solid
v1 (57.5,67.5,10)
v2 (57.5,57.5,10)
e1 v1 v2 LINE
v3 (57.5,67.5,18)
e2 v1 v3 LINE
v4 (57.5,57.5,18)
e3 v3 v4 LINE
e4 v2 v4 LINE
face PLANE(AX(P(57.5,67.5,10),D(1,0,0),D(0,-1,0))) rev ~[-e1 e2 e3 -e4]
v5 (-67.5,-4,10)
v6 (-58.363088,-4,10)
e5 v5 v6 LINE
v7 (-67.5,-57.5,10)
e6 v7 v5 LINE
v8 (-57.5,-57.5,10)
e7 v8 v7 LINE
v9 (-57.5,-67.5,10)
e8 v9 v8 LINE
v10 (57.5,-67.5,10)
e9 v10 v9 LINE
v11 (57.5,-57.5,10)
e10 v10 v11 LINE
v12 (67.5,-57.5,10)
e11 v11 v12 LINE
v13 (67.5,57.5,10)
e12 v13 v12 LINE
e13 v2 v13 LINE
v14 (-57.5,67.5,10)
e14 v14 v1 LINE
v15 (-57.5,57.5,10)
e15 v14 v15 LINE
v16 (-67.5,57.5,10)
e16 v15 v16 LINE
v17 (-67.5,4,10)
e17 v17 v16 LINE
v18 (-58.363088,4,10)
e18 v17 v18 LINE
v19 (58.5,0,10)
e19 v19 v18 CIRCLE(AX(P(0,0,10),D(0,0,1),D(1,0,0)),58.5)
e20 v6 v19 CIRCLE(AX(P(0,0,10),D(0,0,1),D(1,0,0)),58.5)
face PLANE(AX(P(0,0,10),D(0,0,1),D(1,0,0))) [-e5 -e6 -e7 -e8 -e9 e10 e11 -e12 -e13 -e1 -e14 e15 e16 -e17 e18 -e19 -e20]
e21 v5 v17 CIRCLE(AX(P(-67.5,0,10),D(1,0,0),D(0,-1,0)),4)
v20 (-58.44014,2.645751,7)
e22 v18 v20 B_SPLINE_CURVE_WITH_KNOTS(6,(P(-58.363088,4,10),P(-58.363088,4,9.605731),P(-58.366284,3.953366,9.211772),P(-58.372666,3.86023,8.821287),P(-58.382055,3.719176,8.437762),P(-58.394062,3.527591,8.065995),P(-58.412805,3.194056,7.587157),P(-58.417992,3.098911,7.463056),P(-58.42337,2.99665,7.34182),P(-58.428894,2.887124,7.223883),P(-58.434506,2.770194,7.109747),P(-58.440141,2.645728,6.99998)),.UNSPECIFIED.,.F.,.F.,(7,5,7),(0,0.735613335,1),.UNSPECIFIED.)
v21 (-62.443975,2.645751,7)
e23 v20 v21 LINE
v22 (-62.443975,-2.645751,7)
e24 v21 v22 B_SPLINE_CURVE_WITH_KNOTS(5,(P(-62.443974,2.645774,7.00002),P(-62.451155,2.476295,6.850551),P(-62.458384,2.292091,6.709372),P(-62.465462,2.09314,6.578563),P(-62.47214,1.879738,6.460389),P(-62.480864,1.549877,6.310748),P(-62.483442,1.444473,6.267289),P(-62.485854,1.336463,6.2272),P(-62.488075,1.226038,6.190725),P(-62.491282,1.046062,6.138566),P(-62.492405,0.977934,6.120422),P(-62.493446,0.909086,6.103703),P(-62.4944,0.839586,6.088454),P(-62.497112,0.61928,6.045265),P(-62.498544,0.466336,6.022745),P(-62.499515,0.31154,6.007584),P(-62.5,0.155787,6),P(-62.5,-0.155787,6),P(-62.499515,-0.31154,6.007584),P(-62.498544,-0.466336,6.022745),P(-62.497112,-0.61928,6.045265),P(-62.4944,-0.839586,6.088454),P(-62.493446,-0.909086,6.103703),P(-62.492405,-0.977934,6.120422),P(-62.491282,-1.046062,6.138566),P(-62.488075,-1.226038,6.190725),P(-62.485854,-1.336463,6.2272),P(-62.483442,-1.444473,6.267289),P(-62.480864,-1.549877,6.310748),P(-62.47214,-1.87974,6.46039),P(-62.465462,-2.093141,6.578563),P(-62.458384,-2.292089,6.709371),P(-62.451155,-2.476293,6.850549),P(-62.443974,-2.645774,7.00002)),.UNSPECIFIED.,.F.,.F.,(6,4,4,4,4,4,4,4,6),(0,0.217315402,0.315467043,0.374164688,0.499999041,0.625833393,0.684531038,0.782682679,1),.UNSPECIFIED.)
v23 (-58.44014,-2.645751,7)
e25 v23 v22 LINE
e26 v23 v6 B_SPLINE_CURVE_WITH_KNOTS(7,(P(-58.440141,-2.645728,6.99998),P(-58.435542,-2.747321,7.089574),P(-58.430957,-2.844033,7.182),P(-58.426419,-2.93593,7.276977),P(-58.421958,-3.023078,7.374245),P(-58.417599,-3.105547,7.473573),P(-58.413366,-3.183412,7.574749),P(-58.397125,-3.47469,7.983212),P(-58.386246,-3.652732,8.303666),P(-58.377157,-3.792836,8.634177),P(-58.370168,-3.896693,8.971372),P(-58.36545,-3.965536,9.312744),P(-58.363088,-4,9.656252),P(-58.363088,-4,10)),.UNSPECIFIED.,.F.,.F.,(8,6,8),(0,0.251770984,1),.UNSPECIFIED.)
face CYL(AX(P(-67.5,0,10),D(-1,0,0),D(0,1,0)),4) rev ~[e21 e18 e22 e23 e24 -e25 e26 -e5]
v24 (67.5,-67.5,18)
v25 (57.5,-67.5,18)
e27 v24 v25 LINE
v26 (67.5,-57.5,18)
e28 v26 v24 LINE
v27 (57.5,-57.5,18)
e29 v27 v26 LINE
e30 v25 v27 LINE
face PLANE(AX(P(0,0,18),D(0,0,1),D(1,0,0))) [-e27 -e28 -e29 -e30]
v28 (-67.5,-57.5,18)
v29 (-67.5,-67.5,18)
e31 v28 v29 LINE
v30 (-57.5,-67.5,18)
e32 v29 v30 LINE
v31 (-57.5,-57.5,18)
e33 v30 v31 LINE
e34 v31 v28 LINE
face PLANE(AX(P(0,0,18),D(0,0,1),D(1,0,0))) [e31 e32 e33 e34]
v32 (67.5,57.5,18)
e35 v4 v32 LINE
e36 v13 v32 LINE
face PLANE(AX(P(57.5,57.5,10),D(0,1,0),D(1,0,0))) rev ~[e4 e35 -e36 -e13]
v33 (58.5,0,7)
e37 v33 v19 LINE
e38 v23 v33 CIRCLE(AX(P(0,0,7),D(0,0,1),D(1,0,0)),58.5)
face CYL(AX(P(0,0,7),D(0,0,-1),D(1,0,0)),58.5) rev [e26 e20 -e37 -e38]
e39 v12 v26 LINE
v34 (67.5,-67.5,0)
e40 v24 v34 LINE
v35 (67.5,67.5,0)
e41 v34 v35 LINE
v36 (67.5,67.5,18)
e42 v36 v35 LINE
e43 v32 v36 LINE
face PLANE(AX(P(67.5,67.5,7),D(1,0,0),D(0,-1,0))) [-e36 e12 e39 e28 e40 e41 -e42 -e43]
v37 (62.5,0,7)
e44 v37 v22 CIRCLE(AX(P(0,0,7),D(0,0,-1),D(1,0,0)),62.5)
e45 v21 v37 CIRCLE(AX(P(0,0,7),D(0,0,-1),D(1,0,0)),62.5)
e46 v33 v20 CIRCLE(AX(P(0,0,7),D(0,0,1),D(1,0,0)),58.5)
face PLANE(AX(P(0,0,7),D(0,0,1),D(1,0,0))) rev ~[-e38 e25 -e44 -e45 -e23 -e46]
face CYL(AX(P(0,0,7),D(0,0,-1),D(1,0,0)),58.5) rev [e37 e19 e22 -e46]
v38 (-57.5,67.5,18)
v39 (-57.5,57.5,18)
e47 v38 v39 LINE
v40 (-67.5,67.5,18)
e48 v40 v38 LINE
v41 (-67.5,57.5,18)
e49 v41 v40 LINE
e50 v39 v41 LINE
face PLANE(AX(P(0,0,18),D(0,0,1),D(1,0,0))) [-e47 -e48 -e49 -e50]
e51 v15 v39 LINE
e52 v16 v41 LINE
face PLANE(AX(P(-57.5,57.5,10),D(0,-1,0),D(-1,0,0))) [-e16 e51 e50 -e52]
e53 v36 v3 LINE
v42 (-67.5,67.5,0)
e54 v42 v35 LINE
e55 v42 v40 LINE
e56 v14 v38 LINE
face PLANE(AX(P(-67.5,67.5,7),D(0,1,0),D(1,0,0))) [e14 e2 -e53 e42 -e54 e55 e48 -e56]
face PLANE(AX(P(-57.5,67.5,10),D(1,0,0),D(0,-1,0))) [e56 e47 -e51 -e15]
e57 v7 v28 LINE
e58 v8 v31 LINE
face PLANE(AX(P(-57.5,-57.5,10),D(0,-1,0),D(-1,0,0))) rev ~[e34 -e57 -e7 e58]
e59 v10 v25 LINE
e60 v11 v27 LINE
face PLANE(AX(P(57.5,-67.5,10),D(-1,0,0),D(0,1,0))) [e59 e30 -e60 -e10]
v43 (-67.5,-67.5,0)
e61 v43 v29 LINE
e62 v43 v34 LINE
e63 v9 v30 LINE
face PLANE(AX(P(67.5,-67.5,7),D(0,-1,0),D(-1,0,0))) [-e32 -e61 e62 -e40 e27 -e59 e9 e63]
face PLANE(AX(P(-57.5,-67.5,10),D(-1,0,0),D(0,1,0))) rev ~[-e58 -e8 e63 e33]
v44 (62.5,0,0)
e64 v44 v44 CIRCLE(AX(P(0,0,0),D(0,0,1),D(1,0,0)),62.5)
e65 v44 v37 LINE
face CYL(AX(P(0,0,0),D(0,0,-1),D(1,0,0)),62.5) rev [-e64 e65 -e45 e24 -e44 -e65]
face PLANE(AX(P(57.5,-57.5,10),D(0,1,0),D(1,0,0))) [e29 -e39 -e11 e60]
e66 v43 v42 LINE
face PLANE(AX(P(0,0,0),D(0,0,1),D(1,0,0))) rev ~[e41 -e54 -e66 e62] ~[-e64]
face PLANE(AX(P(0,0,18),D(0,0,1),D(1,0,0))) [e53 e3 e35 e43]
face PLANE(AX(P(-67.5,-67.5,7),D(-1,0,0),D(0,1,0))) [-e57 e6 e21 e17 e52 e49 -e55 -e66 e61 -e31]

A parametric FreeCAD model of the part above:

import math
import FreeCAD as App
import Part
import Sketcher
from FreeCAD import Vector
Q = App.Units.Quantity

doc = App.newDocument("Part")
body = doc.addObject("PartDesign::Body", "Body")

# Sketch on XY plane
sketch1 = doc.addObject("Sketcher::SketchObject", "Sketch")
body.addObject(sketch1)
sketch1.AttachmentSupport = (doc.XY_Plane, [""])
sketch1.MapMode = "FlatFace"
sketch1.addGeometry([
    Part.LineSegment(Vector(67.5, -67.5, 0), Vector(67.5, 67.5, 0)),  # 0
    Part.LineSegment(Vector(67.5, 67.5, 0), Vector(-67.5, 67.5, 0)),  # 1
    Part.LineSegment(Vector(-67.5, 67.5, 0), Vector(-67.5, -67.5, 0)),  # 2
    Part.LineSegment(Vector(-67.5, -67.5, 0), Vector(67.5, -67.5, 0)),  # 3
    Part.Circle(Vector(0, 0, 0), Vector(0, 0, 1), 62.5),  # 4
], False)
sketch1.addConstraint([
    Sketcher.Constraint("Coincident", 0, 2, 1, 1),
    Sketcher.Constraint("Coincident", 1, 2, 2, 1),
    Sketcher.Constraint("Coincident", 2, 2, 3, 1),
    Sketcher.Constraint("Coincident", 3, 2, 0, 1),
    Sketcher.Constraint("Vertical", 0),
    Sketcher.Constraint("Horizontal", 1),
    Sketcher.Constraint("Vertical", 2),
    Sketcher.Constraint("Horizontal", 3),
    Sketcher.Constraint("Coincident", 4, 3, -1, 1),
    Sketcher.Constraint("Symmetric", 0, 2, 2, 2, -1, 1),
    Sketcher.Constraint("Equal", 3, 0),
    Sketcher.Constraint("Diameter", 4, Q("125 mm")),
    Sketcher.Constraint("DistanceX", 1, 2, 1, 1, Q("135 mm")),
])
pad1 = doc.addObject("PartDesign::Pad", "Pad")
body.addObject(pad1)
pad1.Profile = sketch1
pad1.Length = 7

# Sketch on XY plane
sketch2 = doc.addObject("Sketcher::SketchObject", "Sketch001")
body.addObject(sketch2)
sketch2.AttachmentSupport = (doc.XY_Plane, [""])
sketch2.MapMode = "FlatFace"
sketch2.AttachmentOffset = App.Placement(Vector(0, 0, 7), App.Rotation())
sketch2.addGeometry([
    Part.LineSegment(Vector(67.5, 67.5, 0), Vector(-67.5, 67.5, 0)),  # 0
    Part.LineSegment(Vector(-67.5, 67.5, 0), Vector(-67.5, -67.5, 0)),  # 1
    Part.LineSegment(Vector(-67.5, -67.5, 0), Vector(67.5, -67.5, 0)),  # 2
    Part.LineSegment(Vector(67.5, -67.5, 0), Vector(67.5, 67.5, 0)),  # 3
    Part.Circle(Vector(0, 0, 0), Vector(0, 0, 1), 58.5),  # 4
], False)
sketch2.addConstraint([
    Sketcher.Constraint("Coincident", 0, 2, 1, 1),
    Sketcher.Constraint("Coincident", 1, 2, 2, 1),
    Sketcher.Constraint("Coincident", 2, 2, 3, 1),
    Sketcher.Constraint("Coincident", 3, 2, 0, 1),
    Sketcher.Constraint("Horizontal", 0),
    Sketcher.Constraint("Vertical", 1),
    Sketcher.Constraint("Horizontal", 2),
    Sketcher.Constraint("Vertical", 3),
    Sketcher.Constraint("Coincident", 4, 3, -1, 1),
    Sketcher.Constraint("Symmetric", 0, 2, 2, 2, -1, 1),
    Sketcher.Constraint("Equal", 2, 1),
    Sketcher.Constraint("Diameter", 4, Q("117 mm")),
    Sketcher.Constraint("DistanceX", 0, 2, 0, 1, Q("135 mm")),
])
pad2 = doc.addObject("PartDesign::Pad", "Pad001")
body.addObject(pad2)
pad2.Profile = sketch2
pad2.Length = 3

# Sketch on XY plane
sketch3 = doc.addObject("Sketcher::SketchObject", "Sketch002")
body.addObject(sketch3)
sketch3.AttachmentSupport = (doc.XY_Plane, [""])
sketch3.MapMode = "FlatFace"
sketch3.AttachmentOffset = App.Placement(Vector(0, 0, 10), App.Rotation())
sketch3.addGeometry([
    Part.LineSegment(Vector(-67.5, -57.5, 0), Vector(-67.5, -67.5, 0)),  # 0
    Part.LineSegment(Vector(-67.5, -67.5, 0), Vector(-57.5, -67.5, 0)),  # 1
    Part.LineSegment(Vector(-57.5, -67.5, 0), Vector(-57.5, -57.5, 0)),  # 2
    Part.LineSegment(Vector(-57.5, -57.5, 0), Vector(-67.5, -57.5, 0)),  # 3
    Part.LineSegment(Vector(67.5, 57.5, 0), Vector(67.5, 67.5, 0)),  # 4
    Part.LineSegment(Vector(67.5, 67.5, 0), Vector(57.5, 67.5, 0)),  # 5
    Part.LineSegment(Vector(57.5, 67.5, 0), Vector(57.5, 57.5, 0)),  # 6
    Part.LineSegment(Vector(57.5, 57.5, 0), Vector(67.5, 57.5, 0)),  # 7
    Part.LineSegment(Vector(-57.5, 67.5, 0), Vector(-67.5, 67.5, 0)),  # 8
    Part.LineSegment(Vector(-67.5, 67.5, 0), Vector(-67.5, 57.5, 0)),  # 9
    Part.LineSegment(Vector(-67.5, 57.5, 0), Vector(-57.5, 57.5, 0)),  # 10
    Part.LineSegment(Vector(-57.5, 57.5, 0), Vector(-57.5, 67.5, 0)),  # 11
    Part.LineSegment(Vector(57.5, -67.5, 0), Vector(67.5, -67.5, 0)),  # 12
    Part.LineSegment(Vector(67.5, -67.5, 0), Vector(67.5, -57.5, 0)),  # 13
    Part.LineSegment(Vector(67.5, -57.5, 0), Vector(57.5, -57.5, 0)),  # 14
    Part.LineSegment(Vector(57.5, -57.5, 0), Vector(57.5, -67.5, 0)),  # 15
], False)
sketch3.addConstraint([
    Sketcher.Constraint("Coincident", 0, 2, 1, 1),
    Sketcher.Constraint("Coincident", 1, 2, 2, 1),
    Sketcher.Constraint("Coincident", 2, 2, 3, 1),
    Sketcher.Constraint("Coincident", 3, 2, 0, 1),
    Sketcher.Constraint("Coincident", 4, 2, 5, 1),
    Sketcher.Constraint("Coincident", 5, 2, 6, 1),
    Sketcher.Constraint("Coincident", 6, 2, 7, 1),
    Sketcher.Constraint("Coincident", 7, 2, 4, 1),
    Sketcher.Constraint("Coincident", 8, 2, 9, 1),
    Sketcher.Constraint("Coincident", 9, 2, 10, 1),
    Sketcher.Constraint("Coincident", 10, 2, 11, 1),
    Sketcher.Constraint("Coincident", 11, 2, 8, 1),
    Sketcher.Constraint("Coincident", 12, 2, 13, 1),
    Sketcher.Constraint("Coincident", 13, 2, 14, 1),
    Sketcher.Constraint("Coincident", 14, 2, 15, 1),
    Sketcher.Constraint("Coincident", 15, 2, 12, 1),
    Sketcher.Constraint("Vertical", 0),
    Sketcher.Constraint("Horizontal", 1),
    Sketcher.Constraint("Vertical", 2),
    Sketcher.Constraint("Horizontal", 3),
    Sketcher.Constraint("Vertical", 4),
    Sketcher.Constraint("Horizontal", 5),
    Sketcher.Constraint("Vertical", 6),
    Sketcher.Constraint("Horizontal", 7),
    Sketcher.Constraint("Horizontal", 8),
    Sketcher.Constraint("Vertical", 9),
    Sketcher.Constraint("Horizontal", 10),
    Sketcher.Constraint("Vertical", 11),
    Sketcher.Constraint("Horizontal", 12),
    Sketcher.Constraint("Vertical", 13),
    Sketcher.Constraint("Horizontal", 14),
    Sketcher.Constraint("Vertical", 15),
    Sketcher.Constraint("Symmetric", 0, 2, 4, 2, -1, 1),
    Sketcher.Constraint("Symmetric", 2, 2, 6, 2, -1, 1),
    Sketcher.Constraint("Symmetric", 8, 2, 12, 2, -1, 1),
    Sketcher.Constraint("Symmetric", 10, 2, 14, 2, -1, 1),
    Sketcher.Constraint("Symmetric", 4, 2, 8, 2, -2),
    Sketcher.Constraint("Symmetric", 6, 2, 10, 2, -2),
    Sketcher.Constraint("Equal", 14, 0),
    Sketcher.Constraint("DistanceX", 1, 1, 1, 2, Q("10 mm")),
    Sketcher.Constraint("DistanceX", 2, 2, 4, 2, Q("125 mm")),
    Sketcher.Constraint("DistanceY", 2, 2, 4, 2, Q("125 mm")),
])
pad3 = doc.addObject("PartDesign::Pad", "Pad002")
body.addObject(pad3)
pad3.Profile = sketch3
pad3.Length = 8

# Sketch on YZ plane
sketch4 = doc.addObject("Sketcher::SketchObject", "Sketch003")
body.addObject(sketch4)
sketch4.AttachmentSupport = (doc.YZ_Plane, [""])
sketch4.MapMode = "FlatFace"
sketch4.AttachmentOffset = App.Placement(Vector(0, 0, -67.5), App.Rotation())
sketch4.addGeometry([
    Part.ArcOfCircle(Part.Circle(Vector(0, 10, 0), Vector(0, 0, 1), 4), math.radians(180), math.radians(360)),
    Part.LineSegment(Vector(-4, 10, 0), Vector(4, 10, 0)),
], False)
sketch4.addConstraint([
    Sketcher.Constraint("Coincident", 0, 1, 1, 1),
    Sketcher.Constraint("Coincident", 1, 2, 0, 2),
    Sketcher.Constraint("Horizontal", 1),
    Sketcher.Constraint("PointOnObject", 0, 3, -2),
    Sketcher.Constraint("Radius", 0, Q("4 mm")),
    Sketcher.Constraint("DistanceY", -1, 1, 0, 3, Q("10 mm")),
    Sketcher.Constraint("DistanceY", -1, 1, 0, 1, Q("10 mm")),
])
pocket1 = doc.addObject("PartDesign::Pocket", "Pocket")
body.addObject(pocket1)
pocket1.Profile = sketch4
pocket1.Length = 10
pocket1.Reversed = True

doc.recompute()
